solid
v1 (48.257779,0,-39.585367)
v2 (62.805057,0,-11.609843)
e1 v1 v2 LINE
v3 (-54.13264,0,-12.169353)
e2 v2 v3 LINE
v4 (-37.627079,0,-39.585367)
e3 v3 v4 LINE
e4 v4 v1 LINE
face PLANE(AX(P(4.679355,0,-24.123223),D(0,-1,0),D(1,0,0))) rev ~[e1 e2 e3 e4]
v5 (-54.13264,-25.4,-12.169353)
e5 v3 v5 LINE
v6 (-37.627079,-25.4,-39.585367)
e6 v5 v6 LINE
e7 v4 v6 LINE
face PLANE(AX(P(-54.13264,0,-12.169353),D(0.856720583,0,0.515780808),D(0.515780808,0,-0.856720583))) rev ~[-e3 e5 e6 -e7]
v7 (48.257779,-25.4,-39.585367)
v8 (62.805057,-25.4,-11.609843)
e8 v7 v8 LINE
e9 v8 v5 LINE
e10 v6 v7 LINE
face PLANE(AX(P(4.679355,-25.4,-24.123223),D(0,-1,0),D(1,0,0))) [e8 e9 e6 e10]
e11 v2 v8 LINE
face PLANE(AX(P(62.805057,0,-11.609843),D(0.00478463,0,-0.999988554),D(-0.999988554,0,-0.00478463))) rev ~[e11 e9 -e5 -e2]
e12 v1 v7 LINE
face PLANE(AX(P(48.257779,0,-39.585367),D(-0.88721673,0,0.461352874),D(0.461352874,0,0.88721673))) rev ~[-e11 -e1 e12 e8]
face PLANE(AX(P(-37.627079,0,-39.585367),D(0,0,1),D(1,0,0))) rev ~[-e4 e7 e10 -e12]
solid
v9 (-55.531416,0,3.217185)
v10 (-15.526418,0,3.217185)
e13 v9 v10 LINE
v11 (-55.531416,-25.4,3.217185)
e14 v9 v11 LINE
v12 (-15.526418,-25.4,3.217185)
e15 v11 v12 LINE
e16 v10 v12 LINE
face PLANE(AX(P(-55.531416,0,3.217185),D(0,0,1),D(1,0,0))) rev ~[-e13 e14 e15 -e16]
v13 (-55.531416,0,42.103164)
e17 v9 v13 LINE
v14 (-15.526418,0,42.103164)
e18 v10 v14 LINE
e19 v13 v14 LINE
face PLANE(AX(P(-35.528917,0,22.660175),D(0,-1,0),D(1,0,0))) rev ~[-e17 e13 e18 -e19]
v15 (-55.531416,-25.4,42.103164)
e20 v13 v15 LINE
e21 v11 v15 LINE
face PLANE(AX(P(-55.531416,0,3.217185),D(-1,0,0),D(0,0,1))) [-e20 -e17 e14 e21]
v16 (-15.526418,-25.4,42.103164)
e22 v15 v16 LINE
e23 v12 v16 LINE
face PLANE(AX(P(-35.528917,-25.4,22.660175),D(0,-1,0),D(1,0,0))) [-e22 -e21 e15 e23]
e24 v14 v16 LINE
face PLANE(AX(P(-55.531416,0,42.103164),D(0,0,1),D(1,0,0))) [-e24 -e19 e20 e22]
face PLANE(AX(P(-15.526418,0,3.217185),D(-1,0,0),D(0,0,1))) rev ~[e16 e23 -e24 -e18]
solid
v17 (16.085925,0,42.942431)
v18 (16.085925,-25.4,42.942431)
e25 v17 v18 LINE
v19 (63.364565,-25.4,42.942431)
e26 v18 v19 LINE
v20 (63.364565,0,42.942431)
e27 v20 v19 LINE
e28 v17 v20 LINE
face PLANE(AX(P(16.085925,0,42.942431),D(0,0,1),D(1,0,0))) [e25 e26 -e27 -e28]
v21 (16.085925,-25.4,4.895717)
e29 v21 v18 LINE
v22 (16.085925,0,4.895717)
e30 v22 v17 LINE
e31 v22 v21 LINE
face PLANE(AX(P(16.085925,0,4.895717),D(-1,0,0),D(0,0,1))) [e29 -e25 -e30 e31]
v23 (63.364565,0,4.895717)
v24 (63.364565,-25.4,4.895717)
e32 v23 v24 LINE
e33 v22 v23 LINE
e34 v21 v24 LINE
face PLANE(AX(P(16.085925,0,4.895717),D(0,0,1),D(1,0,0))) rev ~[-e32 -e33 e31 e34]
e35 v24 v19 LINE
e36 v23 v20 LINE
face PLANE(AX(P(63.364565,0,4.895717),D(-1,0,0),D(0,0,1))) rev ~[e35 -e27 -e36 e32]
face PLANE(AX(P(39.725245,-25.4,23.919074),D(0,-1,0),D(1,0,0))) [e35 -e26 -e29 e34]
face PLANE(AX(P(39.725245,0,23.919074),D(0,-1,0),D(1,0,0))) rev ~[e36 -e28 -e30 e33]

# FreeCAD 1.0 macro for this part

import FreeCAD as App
import Part
import Sketcher
from FreeCAD import Vector
Q = App.Units.Quantity

doc = App.newDocument("Part")
params = doc.addObject("Spreadsheet::Sheet", "Params")
for row, (alias, value) in enumerate([
    ("sketch1_width", "1.575 in"),
    ("pad1_length", "1 in"),
    ("pad2_length", "1 in"),
    ("pad3_length", "1 in"),
], start=1):
    params.set(f"A{row}", alias)
    params.set(f"B{row}", "=" + value)
    params.setAlias(f"B{row}", alias)

body = doc.addObject("PartDesign::Body", "Body")

# Sketch on XZ plane
sketch1 = body.newObject("Sketcher::SketchObject", "Sketch")
sketch1.AttachmentSupport = (doc.getObject("XZ_Plane"), [""])
sketch1.MapMode = "FlatFace"
sketch1.addGeometry(Part.LineSegment(Vector(-56, 42, 0), Vector(-56, 3, 0)), False)
sketch1.addGeometry(Part.LineSegment(Vector(-56, 3, 0), Vector(-16, 3, 0)), False)
sketch1.addGeometry(Part.LineSegment(Vector(-16, 3, 0), Vector(-16, 42, 0)), False)
sketch1.addGeometry(Part.LineSegment(Vector(-16, 42, 0), Vector(-56, 42, 0)), False)
sketch1.addConstraint(Sketcher.Constraint("Coincident", 0, 2, 1, 1))
sketch1.addConstraint(Sketcher.Constraint("Coincident", 1, 2, 2, 1))
sketch1.addConstraint(Sketcher.Constraint("Coincident", 2, 2, 3, 1))
sketch1.addConstraint(Sketcher.Constraint("Coincident", 3, 2, 0, 1))
sketch1.addConstraint(Sketcher.Constraint("Vertical", 0))
sketch1.addConstraint(Sketcher.Constraint("Horizontal", 1))
sketch1.addConstraint(Sketcher.Constraint("Vertical", 2))
sketch1.addConstraint(Sketcher.Constraint("Horizontal", 3))
sketch1.addConstraint(Sketcher.Constraint("DistanceX", 1, 1, 1, 2, Q("1.575 in")))
sketch1.addConstraint(Sketcher.Constraint("DistanceY", 0, 2, 0, 1, Q("38.885979 mm")))
sketch1.addConstraint(Sketcher.Constraint("DistanceX", 0, 2, -1, 1, Q("55.531416 mm")))
sketch1.addConstraint(Sketcher.Constraint("DistanceY", -1, 1, 0, 2, Q("3.217185 mm")))
sketch1.setExpression("Constraints[8]", "Params.sketch1_width")
pad1 = body.newObject("PartDesign::Pad", "Pad")
pad1.Profile = sketch1
pad1.setExpression("Length", "Params.pad1_length")
body2 = doc.addObject("PartDesign::Body", "Body001")

# Sketch on XZ plane
sketch2 = body2.newObject("Sketcher::SketchObject", "Sketch001")
sketch2.AttachmentSupport = (doc.getObject("XZ_Plane001"), [""])
sketch2.MapMode = "FlatFace"
sketch2.addGeometry(Part.LineSegment(Vector(16, 43, 0), Vector(16, 5, 0)), False)
sketch2.addGeometry(Part.LineSegment(Vector(16, 5, 0), Vector(63, 5, 0)), False)
sketch2.addGeometry(Part.LineSegment(Vector(63, 5, 0), Vector(63, 43, 0)), False)
sketch2.addGeometry(Part.LineSegment(Vector(63, 43, 0), Vector(16, 43, 0)), False)
sketch2.addConstraint(Sketcher.Constraint("Coincident", 0, 2, 1, 1))
sketch2.addConstraint(Sketcher.Constraint("Coincident", 1, 2, 2, 1))
sketch2.addConstraint(Sketcher.Constraint("Coincident", 2, 2, 3, 1))
sketch2.addConstraint(Sketcher.Constraint("Coincident", 3, 2, 0, 1))
sketch2.addConstraint(Sketcher.Constraint("Vertical", 0))
sketch2.addConstraint(Sketcher.Constraint("Horizontal", 1))
sketch2.addConstraint(Sketcher.Constraint("Vertical", 2))
sketch2.addConstraint(Sketcher.Constraint("Horizontal", 3))
sketch2.addConstraint(Sketcher.Constraint("DistanceX", 1, 1, 1, 2, Q("47.278639 mm")))
sketch2.addConstraint(Sketcher.Constraint("DistanceY", 0, 2, 0, 1, Q("38.046714 mm")))
sketch2.addConstraint(Sketcher.Constraint("DistanceY", -1, 1, 2, 2, Q("42.942431 mm")))
sketch2.addConstraint(Sketcher.Constraint("DistanceX", -1, 1, 0, 2, Q("16.085925 mm")))
pad2 = body2.newObject("PartDesign::Pad", "Pad001")
pad2.Profile = sketch2
pad2.setExpression("Length", "Params.pad2_length")
body3 = doc.addObject("PartDesign::Body", "Body002")

# Sketch on XZ plane
sketch3 = body3.newObject("Sketcher::SketchObject", "Sketch002")
sketch3.AttachmentSupport = (doc.getObject("XZ_Plane002"), [""])
sketch3.MapMode = "FlatFace"
sketch3.addGeometry(Part.LineSegment(Vector(63, -12, 0), Vector(-54, -12, 0)), False)
sketch3.addGeometry(Part.LineSegment(Vector(-54, -12, 0), Vector(-38, -40, 0)), False)
sketch3.addGeometry(Part.LineSegment(Vector(-38, -40, 0), Vector(48, -40, 0)), False)
sketch3.addGeometry(Part.LineSegment(Vector(48, -40, 0), Vector(63, -12, 0)), False)
sketch3.addConstraint(Sketcher.Constraint("Coincident", 0, 2, 1, 1))
sketch3.addConstraint(Sketcher.Constraint("Coincident", 1, 2, 2, 1))
sketch3.addConstraint(Sketcher.Constraint("Coincident", 2, 2, 3, 1))
sketch3.addConstraint(Sketcher.Constraint("Coincident", 3, 2, 0, 1))
sketch3.addConstraint(Sketcher.Constraint("Horizontal", 2))
sketch3.addConstraint(Sketcher.Constraint("DistanceX", 2, 1, 2, 2, Q("85.884858 mm")))
sketch3.addConstraint(Sketcher.Constraint("Distance", 3, Q("31.531781 mm")))
sketch3.addConstraint(Sketcher.Constraint("DistanceX", 0, 2, -1, 1, Q("54.13264 mm")))
sketch3.addConstraint(Sketcher.Constraint("DistanceX", 1, 2, -1, 1, Q("37.627079 mm")))
sketch3.addConstraint(Sketcher.Constraint("DistanceY", 0, 2, 3, 2, Q("0.55951 mm")))
sketch3.addConstraint(Sketcher.Constraint("Distance", 0, Q("116.939036 mm")))
sketch3.addConstraint(Sketcher.Constraint("DistanceY", 0, 2, -1, 1, Q("12.169353 mm")))
pad3 = body3.newObject("PartDesign::Pad", "Pad002")
pad3.Profile = sketch3
pad3.setExpression("Length", "Params.pad3_length")

doc.recompute()
